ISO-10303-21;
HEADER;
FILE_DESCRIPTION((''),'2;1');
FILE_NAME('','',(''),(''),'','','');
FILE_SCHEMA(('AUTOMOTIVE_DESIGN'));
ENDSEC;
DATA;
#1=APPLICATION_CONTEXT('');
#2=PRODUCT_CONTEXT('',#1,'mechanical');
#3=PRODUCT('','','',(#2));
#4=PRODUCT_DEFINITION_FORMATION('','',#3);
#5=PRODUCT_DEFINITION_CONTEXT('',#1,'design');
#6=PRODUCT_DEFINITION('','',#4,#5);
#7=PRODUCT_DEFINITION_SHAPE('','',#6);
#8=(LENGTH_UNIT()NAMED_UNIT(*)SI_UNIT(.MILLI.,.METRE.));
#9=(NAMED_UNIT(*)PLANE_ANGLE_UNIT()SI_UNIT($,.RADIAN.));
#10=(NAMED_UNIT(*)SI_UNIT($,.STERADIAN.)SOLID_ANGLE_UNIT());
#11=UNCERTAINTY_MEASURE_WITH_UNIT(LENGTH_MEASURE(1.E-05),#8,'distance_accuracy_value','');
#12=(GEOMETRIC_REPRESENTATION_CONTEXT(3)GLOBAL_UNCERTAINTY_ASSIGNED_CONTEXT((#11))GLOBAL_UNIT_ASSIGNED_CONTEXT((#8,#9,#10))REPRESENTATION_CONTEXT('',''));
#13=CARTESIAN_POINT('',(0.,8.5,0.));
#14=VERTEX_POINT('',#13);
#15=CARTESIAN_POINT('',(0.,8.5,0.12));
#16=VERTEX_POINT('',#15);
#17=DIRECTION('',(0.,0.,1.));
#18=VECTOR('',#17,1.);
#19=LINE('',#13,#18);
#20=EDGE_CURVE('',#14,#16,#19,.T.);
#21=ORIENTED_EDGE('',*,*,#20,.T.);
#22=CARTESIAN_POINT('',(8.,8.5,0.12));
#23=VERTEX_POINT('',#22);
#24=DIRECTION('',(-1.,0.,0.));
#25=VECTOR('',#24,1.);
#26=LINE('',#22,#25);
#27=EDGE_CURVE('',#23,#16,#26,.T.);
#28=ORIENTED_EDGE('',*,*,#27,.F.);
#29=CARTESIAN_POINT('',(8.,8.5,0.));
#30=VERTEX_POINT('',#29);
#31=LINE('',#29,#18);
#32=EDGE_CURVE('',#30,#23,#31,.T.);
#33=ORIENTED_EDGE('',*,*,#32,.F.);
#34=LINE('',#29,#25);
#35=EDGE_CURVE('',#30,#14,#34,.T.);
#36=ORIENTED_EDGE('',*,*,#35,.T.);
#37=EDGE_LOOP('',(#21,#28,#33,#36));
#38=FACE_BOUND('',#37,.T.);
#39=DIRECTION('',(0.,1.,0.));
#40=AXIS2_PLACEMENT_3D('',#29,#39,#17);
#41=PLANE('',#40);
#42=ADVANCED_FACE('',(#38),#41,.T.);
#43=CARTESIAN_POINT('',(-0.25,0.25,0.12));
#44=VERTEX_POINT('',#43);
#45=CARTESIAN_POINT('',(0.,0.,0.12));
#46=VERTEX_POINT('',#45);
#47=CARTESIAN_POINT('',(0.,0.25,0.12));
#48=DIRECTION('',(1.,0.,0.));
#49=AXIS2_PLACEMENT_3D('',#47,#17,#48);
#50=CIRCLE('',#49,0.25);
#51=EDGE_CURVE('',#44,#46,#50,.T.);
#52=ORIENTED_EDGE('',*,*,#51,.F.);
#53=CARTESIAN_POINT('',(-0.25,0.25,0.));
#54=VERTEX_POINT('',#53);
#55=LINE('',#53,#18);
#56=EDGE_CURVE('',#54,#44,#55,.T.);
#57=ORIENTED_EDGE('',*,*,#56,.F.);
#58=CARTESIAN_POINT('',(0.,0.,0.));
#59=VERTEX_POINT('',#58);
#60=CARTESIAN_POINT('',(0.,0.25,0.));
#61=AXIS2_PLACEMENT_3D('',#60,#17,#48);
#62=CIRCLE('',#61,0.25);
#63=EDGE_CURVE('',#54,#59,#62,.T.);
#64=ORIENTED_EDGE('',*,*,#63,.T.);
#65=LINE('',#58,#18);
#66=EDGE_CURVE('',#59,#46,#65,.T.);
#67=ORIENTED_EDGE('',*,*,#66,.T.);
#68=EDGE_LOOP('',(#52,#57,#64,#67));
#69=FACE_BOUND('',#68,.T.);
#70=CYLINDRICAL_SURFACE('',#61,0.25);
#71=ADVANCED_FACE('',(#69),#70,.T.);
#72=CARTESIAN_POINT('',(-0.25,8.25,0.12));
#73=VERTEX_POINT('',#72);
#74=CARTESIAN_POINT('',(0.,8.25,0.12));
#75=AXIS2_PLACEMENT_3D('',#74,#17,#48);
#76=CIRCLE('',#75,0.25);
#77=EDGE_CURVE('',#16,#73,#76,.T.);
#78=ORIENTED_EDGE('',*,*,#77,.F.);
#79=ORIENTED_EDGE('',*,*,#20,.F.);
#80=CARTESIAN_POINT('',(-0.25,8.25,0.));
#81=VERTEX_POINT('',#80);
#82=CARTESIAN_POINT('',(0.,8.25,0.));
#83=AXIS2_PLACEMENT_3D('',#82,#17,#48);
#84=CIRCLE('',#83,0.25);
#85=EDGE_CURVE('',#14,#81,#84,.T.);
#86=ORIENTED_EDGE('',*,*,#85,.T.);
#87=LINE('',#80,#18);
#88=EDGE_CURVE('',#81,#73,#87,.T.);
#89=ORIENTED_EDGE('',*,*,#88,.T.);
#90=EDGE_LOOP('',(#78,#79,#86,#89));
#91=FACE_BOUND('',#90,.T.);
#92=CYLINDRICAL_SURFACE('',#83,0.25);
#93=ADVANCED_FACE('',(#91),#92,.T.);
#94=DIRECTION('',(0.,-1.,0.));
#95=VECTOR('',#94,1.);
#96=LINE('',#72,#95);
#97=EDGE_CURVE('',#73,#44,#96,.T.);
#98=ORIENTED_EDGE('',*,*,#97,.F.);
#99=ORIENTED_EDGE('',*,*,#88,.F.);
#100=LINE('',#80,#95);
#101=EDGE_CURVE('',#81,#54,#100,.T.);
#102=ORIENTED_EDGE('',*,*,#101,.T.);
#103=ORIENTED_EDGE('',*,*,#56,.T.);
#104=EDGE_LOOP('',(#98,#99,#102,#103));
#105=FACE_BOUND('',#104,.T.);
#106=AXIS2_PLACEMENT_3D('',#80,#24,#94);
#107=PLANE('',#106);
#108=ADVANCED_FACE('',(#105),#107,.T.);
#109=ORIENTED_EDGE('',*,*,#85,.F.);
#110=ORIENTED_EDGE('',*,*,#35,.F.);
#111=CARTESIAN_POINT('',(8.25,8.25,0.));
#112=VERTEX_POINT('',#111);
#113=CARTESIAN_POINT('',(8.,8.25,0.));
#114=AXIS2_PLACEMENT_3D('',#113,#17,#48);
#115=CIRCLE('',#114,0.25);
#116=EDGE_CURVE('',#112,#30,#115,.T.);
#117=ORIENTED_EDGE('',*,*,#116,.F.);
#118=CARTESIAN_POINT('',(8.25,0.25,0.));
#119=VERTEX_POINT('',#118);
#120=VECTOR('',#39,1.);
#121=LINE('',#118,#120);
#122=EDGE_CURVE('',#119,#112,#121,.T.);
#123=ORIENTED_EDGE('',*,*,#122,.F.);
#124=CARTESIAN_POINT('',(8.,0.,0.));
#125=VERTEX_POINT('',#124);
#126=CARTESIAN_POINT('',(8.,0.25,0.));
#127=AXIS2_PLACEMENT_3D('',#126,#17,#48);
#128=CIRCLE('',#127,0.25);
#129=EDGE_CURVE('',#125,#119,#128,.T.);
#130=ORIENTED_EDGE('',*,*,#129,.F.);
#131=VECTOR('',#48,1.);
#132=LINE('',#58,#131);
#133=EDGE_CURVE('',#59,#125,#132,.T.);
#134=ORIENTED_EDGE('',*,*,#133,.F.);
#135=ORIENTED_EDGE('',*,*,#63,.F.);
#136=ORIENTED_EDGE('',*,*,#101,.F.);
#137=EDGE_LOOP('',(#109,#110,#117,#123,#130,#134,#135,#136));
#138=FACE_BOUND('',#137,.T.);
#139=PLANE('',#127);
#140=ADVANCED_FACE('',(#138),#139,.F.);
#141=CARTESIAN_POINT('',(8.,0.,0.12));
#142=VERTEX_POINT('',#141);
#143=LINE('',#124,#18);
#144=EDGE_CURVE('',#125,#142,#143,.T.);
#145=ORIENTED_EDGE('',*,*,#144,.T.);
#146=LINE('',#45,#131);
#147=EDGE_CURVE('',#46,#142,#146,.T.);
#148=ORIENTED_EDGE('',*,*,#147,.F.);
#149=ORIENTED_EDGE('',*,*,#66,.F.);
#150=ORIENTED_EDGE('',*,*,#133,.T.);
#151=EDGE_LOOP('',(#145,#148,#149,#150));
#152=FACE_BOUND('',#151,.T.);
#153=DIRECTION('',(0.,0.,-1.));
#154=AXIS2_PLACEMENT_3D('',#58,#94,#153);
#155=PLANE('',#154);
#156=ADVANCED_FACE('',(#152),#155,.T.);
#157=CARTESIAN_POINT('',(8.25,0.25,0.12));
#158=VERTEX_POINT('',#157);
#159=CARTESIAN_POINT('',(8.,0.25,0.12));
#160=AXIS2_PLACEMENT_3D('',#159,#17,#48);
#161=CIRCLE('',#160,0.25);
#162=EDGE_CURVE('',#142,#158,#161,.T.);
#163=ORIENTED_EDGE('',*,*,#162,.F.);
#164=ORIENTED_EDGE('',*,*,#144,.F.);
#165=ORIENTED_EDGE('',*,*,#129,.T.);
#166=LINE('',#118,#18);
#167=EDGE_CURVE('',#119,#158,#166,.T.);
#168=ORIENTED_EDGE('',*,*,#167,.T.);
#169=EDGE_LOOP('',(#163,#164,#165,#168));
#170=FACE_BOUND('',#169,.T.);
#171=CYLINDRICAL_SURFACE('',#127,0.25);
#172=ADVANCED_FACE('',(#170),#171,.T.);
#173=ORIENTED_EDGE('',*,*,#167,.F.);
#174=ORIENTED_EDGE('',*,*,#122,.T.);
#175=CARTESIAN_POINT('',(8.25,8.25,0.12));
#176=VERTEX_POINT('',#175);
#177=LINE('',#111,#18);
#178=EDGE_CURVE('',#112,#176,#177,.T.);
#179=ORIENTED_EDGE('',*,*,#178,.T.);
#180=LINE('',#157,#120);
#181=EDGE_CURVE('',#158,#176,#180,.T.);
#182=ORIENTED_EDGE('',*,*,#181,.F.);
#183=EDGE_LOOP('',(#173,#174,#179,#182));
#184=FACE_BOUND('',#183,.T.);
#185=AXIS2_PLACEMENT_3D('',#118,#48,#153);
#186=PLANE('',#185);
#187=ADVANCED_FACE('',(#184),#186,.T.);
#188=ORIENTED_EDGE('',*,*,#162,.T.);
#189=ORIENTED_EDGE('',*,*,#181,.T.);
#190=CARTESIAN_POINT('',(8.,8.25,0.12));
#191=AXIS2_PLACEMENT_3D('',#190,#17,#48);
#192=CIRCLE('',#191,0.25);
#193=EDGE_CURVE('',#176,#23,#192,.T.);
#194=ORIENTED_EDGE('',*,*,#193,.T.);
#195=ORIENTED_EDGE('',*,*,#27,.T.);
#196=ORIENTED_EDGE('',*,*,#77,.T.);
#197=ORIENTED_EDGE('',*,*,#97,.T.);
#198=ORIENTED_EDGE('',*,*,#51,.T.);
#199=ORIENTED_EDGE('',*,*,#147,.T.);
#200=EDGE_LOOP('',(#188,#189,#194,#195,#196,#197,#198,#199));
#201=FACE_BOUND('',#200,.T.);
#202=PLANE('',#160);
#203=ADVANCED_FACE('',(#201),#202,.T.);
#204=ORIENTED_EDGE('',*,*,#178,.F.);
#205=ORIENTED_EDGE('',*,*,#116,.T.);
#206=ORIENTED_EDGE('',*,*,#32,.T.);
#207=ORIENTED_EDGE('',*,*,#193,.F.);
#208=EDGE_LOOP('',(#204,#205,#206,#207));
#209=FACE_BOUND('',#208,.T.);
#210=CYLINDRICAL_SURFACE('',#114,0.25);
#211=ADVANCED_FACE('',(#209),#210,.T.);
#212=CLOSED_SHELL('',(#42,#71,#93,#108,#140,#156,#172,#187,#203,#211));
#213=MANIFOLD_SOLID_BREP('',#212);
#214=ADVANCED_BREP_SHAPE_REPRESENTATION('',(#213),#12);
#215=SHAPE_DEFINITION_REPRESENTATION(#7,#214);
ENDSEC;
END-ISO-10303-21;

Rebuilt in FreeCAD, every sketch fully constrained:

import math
import FreeCAD as App
import Part
import Sketcher

V = App.Vector

doc = App.newDocument("Part")
body = doc.addObject("PartDesign::Body", "Body")

# Sketch on XY plane
sketch1 = doc.addObject("Sketcher::SketchObject", "Sketch")
body.addObject(sketch1)
sketch1.AttachmentSupport = (doc.XY_Plane, [""])
sketch1.MapMode = "FlatFace"
sketch1.AttachmentOffset = App.Placement(V(0, 0, 0.12), App.Rotation())
sketch1.addGeometry([
    Part.LineSegment(V(8.25, 0.25, 0), V(8.25, 8.25, 0)),  # 0
    Part.ArcOfCircle(Part.Circle(V(8, 8.25, 0), V(0, 0, 1), 0.25), math.radians(0), math.radians(90)),  # 1
    Part.LineSegment(V(8, 8.5, 0), V(0, 8.5, 0)),  # 2
    Part.ArcOfCircle(Part.Circle(V(0, 8.25, 0), V(0, 0, 1), 0.25), math.radians(90), math.radians(180)),  # 3
    Part.LineSegment(V(-0.25, 8.25, 0), V(-0.25, 0.25, 0)),  # 4
    Part.ArcOfCircle(Part.Circle(V(0, 0.25, 0), V(0, 0, 1), 0.25), math.radians(-180), math.radians(-90)),  # 5
    Part.LineSegment(V(0, 0, 0), V(8, 0, 0)),  # 6
    Part.ArcOfCircle(Part.Circle(V(8, 0.25, 0), V(0, 0, 1), 0.25), math.radians(-90), math.radians(0)),  # 7
], False)
sketch1.addConstraint([
    Sketcher.Constraint("Tangent", 0, 2, 1, 1),
    Sketcher.Constraint("Tangent", 1, 2, 2, 1),
    Sketcher.Constraint("Tangent", 2, 2, 3, 1),
    Sketcher.Constraint("Tangent", 3, 2, 4, 1),
    Sketcher.Constraint("Tangent", 4, 2, 5, 1),
    Sketcher.Constraint("Tangent", 5, 2, 6, 1),
    Sketcher.Constraint("Tangent", 6, 2, 7, 1),
    Sketcher.Constraint("Tangent", 7, 2, 0, 1),
    Sketcher.Constraint("Vertical", 0),
    Sketcher.Constraint("Horizontal", 2),
    Sketcher.Constraint("Vertical", 4),
    Sketcher.Constraint("Horizontal", 6),
    Sketcher.Constraint("Coincident", 5, 2, -1, 1),
    Sketcher.Constraint("Equal", 1, 3),
    Sketcher.Constraint("Equal", 3, 5),
    Sketcher.Constraint("Equal", 5, 7),
    Sketcher.Constraint("Equal", 6, 0),
    Sketcher.Constraint("DistanceX", 2, 2, 2, 1, 8.0),
    Sketcher.Constraint("Radius", 1, 0.25),
])
pad1 = doc.addObject("PartDesign::Pad", "Pad")
body.addObject(pad1)
pad1.Profile = sketch1
pad1.Length = 0.12
pad1.Reversed = True

doc.recompute()
